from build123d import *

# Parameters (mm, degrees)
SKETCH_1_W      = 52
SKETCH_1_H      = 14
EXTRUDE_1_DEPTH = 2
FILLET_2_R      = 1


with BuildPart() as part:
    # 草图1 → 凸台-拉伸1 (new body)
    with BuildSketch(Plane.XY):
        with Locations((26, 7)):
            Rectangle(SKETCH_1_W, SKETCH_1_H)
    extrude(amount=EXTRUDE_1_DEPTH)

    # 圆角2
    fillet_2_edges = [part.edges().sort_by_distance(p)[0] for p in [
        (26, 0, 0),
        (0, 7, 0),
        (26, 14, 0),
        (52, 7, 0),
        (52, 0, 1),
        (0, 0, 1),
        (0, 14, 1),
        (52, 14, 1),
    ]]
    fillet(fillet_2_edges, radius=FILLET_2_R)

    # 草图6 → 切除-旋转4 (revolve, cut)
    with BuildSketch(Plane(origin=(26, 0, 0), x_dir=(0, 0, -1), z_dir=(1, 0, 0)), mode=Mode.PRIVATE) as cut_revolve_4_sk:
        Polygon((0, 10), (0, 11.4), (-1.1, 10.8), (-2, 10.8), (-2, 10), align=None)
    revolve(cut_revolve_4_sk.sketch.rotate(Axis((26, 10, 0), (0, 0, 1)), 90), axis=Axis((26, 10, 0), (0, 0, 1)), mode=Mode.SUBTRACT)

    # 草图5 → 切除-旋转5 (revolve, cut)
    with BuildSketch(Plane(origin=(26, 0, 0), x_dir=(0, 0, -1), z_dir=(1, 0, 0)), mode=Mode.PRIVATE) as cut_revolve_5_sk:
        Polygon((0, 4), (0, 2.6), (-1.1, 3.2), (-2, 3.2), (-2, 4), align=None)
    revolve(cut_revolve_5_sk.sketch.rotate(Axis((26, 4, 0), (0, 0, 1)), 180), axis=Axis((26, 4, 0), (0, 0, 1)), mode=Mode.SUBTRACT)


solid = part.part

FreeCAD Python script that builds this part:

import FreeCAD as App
import Part
import Sketcher

V = App.Vector


def edges_at(feature, points):
    """Names of the edges that pass closest to the given points."""
    edges = feature.Shape.Edges
    near = lambda p: min(range(len(edges)), key=lambda i: edges[i].distToShape(Part.Vertex(*p))[0])
    return sorted({f"Edge{near(p) + 1}" for p in points})


def add_polygon(sketch, points):
    """Adds a closed chain of lines whose ends are joined by coincident constraints."""
    first, n = sketch.GeometryCount, len(points)
    for a, b in zip(points, points[1:] + points[:1]):
        sketch.addGeometry(Part.LineSegment(App.Vector(*a, 0), App.Vector(*b, 0)), False)
    for i in range(n):
        sketch.addConstraint(Sketcher.Constraint("Coincident", first + i, 2, first + (i + 1) % n, 1))

doc = App.newDocument("Part")
params = doc.addObject("Spreadsheet::Sheet", "Params")
for row, (alias, value) in enumerate([
    ("sketch1_width", "52 mm"),
    ("sketch1_height", "14 mm"),
    ("pad1_length", "2 mm"),
    ("fillet_radius", "1 mm"),
    ("sketch2_height", "2 mm"),
    ("sketch2_width", "1.4 mm"),
    ("sketch2_width2", "0.8 mm"),
    ("sketch2_height2", "0.9 mm"),
    ("groove_angle", "360 deg"),
    ("sketch3_height", "2 mm"),
    ("sketch3_width", "1.4 mm"),
    ("sketch3_width2", "0.8 mm"),
    ("sketch3_height2", "0.9 mm"),
    ("groove2_angle", "360 deg"),
], start=1):
    params.set(f"A{row}", alias)
    params.set(f"B{row}", "=" + value)
    params.setAlias(f"B{row}", alias)

body = doc.addObject("PartDesign::Body", "Body")

# Sketch on XY plane
sketch1 = doc.addObject("Sketcher::SketchObject", "Sketch")
body.addObject(sketch1)
sketch1.AttachmentSupport = (doc.XY_Plane, [""])
sketch1.MapMode = "FlatFace"
add_polygon(sketch1, [(0, 14), (0, 0), (52, 0), (52, 14)])  # lines 0-3
sketch1.addConstraint([
    Sketcher.Constraint("Vertical", 0),
    Sketcher.Constraint("Horizontal", 1),
    Sketcher.Constraint("Vertical", 2),
    Sketcher.Constraint("Horizontal", 3),
    Sketcher.Constraint("Coincident", 0, 2, -1, 1),
    Sketcher.Constraint("DistanceX", 1, 1, 1, 2, 52.0),
    Sketcher.Constraint("DistanceY", 0, 2, 0, 1, 14.0),
])
sketch1.setExpression("Constraints[9]", "Params.sketch1_width")
sketch1.setExpression("Constraints[10]", "Params.sketch1_height")
pad1 = doc.addObject("PartDesign::Pad", "Pad")
body.addObject(pad1)
pad1.Profile = sketch1
pad1.setExpression("Length", "Params.pad1_length")
doc.recompute()

fillet = doc.addObject("PartDesign::Fillet", "Fillet")
body.addObject(fillet)
fillet.Base = (pad1, edges_at(pad1, [
    (26, 0, 0),
    (0, 7, 0),
    (26, 14, 0),
    (52, 7, 0),
    (52, 0, 1),
    (0, 0, 1),
    (0, 14, 1),
    (52, 14, 1),
]))
fillet.setExpression("Radius", "Params.fillet_radius")

# Sketch on YZ plane
sketch2 = doc.addObject("Sketcher::SketchObject", "Sketch001")
body.addObject(sketch2)
sketch2.AttachmentSupport = (doc.YZ_Plane, [""])
sketch2.MapMode = "FlatFace"
sketch2.AttachmentOffset = App.Placement(V(0, 0, 26), App.Rotation())
add_polygon(sketch2, [(10, 0), (11.4, 0), (10.8, 1.1), (10.8, 2), (10, 2)])  # lines 0-4
sketch2.addGeometry(Part.LineSegment(V(10, 0, 0), V(10, 2, 0)), True)  # axis
sketch2.addConstraint([
    Sketcher.Constraint("Horizontal", 0),
    Sketcher.Constraint("Vertical", 2),
    Sketcher.Constraint("Horizontal", 3),
    Sketcher.Constraint("Vertical", 4),
    Sketcher.Constraint("Vertical", 5),
    Sketcher.Constraint("Coincident", 5, 1, 4, 2),
    Sketcher.Constraint("PointOnObject", 0, 2, -1),
    Sketcher.Constraint("Horizontal", 2, 2, 5, 2),
    Sketcher.Constraint("DistanceY", 4, 2, 4, 1, 2.0),
    Sketcher.Constraint("DistanceX", 0, 1, 0, 2, 1.4),
    Sketcher.Constraint("DistanceX", 3, 2, 3, 1, 0.8),
    Sketcher.Constraint("DistanceY", 2, 1, 2, 2, 0.9),
    Sketcher.Constraint("DistanceX", -1, 1, 3, 2, 10.0),
])
sketch2.setExpression("Constraints[13]", "Params.sketch2_height")
sketch2.setExpression("Constraints[14]", "Params.sketch2_width")
sketch2.setExpression("Constraints[15]", "Params.sketch2_width2")
sketch2.setExpression("Constraints[16]", "Params.sketch2_height2")
groove = doc.addObject("PartDesign::Groove", "Groove")
body.addObject(groove)
groove.Profile = sketch2
groove.ReferenceAxis = (sketch2, ["Axis0"])
groove.setExpression("Angle", "Params.groove_angle")

# Sketch on YZ plane
sketch3 = doc.addObject("Sketcher::SketchObject", "Sketch002")
body.addObject(sketch3)
sketch3.AttachmentSupport = (doc.YZ_Plane, [""])
sketch3.MapMode = "FlatFace"
sketch3.AttachmentOffset = App.Placement(V(0, 0, 26), App.Rotation())
add_polygon(sketch3, [(2.6, 0), (4, 0), (4, 2), (3.2, 2), (3.2, 1.1)])  # lines 0-4
sketch3.addGeometry(Part.LineSegment(V(4, 0, 0), V(4, 2, 0)), True)  # axis
sketch3.addConstraint([
    Sketcher.Constraint("Horizontal", 0),
    Sketcher.Constraint("Vertical", 1),
    Sketcher.Constraint("Horizontal", 2),
    Sketcher.Constraint("Vertical", 3),
    Sketcher.Constraint("Vertical", 5),
    Sketcher.Constraint("Coincident", 5, 1, 0, 2),
    Sketcher.Constraint("PointOnObject", 0, 2, -1),
    Sketcher.Constraint("Horizontal", 2, 2, 5, 2),
    Sketcher.Constraint("DistanceY", 1, 1, 1, 2, 2.0),
    Sketcher.Constraint("DistanceX", 0, 1, 0, 2, 1.4),
    Sketcher.Constraint("DistanceX", 2, 2, 2, 1, 0.8),
    Sketcher.Constraint("DistanceY", 3, 2, 3, 1, 0.9),
    Sketcher.Constraint("DistanceX", -1, 1, 0, 2, 4.0),
])
sketch3.setExpression("Constraints[13]", "Params.sketch3_height")
sketch3.setExpression("Constraints[14]", "Params.sketch3_width")
sketch3.setExpression("Constraints[15]", "Params.sketch3_width2")
sketch3.setExpression("Constraints[16]", "Params.sketch3_height2")
groove2 = doc.addObject("PartDesign::Groove", "Groove001")
body.addObject(groove2)
groove2.Profile = sketch3
groove2.ReferenceAxis = (sketch3, ["Axis0"])
groove2.setExpression("Angle", "Params.groove2_angle")

doc.recompute()
